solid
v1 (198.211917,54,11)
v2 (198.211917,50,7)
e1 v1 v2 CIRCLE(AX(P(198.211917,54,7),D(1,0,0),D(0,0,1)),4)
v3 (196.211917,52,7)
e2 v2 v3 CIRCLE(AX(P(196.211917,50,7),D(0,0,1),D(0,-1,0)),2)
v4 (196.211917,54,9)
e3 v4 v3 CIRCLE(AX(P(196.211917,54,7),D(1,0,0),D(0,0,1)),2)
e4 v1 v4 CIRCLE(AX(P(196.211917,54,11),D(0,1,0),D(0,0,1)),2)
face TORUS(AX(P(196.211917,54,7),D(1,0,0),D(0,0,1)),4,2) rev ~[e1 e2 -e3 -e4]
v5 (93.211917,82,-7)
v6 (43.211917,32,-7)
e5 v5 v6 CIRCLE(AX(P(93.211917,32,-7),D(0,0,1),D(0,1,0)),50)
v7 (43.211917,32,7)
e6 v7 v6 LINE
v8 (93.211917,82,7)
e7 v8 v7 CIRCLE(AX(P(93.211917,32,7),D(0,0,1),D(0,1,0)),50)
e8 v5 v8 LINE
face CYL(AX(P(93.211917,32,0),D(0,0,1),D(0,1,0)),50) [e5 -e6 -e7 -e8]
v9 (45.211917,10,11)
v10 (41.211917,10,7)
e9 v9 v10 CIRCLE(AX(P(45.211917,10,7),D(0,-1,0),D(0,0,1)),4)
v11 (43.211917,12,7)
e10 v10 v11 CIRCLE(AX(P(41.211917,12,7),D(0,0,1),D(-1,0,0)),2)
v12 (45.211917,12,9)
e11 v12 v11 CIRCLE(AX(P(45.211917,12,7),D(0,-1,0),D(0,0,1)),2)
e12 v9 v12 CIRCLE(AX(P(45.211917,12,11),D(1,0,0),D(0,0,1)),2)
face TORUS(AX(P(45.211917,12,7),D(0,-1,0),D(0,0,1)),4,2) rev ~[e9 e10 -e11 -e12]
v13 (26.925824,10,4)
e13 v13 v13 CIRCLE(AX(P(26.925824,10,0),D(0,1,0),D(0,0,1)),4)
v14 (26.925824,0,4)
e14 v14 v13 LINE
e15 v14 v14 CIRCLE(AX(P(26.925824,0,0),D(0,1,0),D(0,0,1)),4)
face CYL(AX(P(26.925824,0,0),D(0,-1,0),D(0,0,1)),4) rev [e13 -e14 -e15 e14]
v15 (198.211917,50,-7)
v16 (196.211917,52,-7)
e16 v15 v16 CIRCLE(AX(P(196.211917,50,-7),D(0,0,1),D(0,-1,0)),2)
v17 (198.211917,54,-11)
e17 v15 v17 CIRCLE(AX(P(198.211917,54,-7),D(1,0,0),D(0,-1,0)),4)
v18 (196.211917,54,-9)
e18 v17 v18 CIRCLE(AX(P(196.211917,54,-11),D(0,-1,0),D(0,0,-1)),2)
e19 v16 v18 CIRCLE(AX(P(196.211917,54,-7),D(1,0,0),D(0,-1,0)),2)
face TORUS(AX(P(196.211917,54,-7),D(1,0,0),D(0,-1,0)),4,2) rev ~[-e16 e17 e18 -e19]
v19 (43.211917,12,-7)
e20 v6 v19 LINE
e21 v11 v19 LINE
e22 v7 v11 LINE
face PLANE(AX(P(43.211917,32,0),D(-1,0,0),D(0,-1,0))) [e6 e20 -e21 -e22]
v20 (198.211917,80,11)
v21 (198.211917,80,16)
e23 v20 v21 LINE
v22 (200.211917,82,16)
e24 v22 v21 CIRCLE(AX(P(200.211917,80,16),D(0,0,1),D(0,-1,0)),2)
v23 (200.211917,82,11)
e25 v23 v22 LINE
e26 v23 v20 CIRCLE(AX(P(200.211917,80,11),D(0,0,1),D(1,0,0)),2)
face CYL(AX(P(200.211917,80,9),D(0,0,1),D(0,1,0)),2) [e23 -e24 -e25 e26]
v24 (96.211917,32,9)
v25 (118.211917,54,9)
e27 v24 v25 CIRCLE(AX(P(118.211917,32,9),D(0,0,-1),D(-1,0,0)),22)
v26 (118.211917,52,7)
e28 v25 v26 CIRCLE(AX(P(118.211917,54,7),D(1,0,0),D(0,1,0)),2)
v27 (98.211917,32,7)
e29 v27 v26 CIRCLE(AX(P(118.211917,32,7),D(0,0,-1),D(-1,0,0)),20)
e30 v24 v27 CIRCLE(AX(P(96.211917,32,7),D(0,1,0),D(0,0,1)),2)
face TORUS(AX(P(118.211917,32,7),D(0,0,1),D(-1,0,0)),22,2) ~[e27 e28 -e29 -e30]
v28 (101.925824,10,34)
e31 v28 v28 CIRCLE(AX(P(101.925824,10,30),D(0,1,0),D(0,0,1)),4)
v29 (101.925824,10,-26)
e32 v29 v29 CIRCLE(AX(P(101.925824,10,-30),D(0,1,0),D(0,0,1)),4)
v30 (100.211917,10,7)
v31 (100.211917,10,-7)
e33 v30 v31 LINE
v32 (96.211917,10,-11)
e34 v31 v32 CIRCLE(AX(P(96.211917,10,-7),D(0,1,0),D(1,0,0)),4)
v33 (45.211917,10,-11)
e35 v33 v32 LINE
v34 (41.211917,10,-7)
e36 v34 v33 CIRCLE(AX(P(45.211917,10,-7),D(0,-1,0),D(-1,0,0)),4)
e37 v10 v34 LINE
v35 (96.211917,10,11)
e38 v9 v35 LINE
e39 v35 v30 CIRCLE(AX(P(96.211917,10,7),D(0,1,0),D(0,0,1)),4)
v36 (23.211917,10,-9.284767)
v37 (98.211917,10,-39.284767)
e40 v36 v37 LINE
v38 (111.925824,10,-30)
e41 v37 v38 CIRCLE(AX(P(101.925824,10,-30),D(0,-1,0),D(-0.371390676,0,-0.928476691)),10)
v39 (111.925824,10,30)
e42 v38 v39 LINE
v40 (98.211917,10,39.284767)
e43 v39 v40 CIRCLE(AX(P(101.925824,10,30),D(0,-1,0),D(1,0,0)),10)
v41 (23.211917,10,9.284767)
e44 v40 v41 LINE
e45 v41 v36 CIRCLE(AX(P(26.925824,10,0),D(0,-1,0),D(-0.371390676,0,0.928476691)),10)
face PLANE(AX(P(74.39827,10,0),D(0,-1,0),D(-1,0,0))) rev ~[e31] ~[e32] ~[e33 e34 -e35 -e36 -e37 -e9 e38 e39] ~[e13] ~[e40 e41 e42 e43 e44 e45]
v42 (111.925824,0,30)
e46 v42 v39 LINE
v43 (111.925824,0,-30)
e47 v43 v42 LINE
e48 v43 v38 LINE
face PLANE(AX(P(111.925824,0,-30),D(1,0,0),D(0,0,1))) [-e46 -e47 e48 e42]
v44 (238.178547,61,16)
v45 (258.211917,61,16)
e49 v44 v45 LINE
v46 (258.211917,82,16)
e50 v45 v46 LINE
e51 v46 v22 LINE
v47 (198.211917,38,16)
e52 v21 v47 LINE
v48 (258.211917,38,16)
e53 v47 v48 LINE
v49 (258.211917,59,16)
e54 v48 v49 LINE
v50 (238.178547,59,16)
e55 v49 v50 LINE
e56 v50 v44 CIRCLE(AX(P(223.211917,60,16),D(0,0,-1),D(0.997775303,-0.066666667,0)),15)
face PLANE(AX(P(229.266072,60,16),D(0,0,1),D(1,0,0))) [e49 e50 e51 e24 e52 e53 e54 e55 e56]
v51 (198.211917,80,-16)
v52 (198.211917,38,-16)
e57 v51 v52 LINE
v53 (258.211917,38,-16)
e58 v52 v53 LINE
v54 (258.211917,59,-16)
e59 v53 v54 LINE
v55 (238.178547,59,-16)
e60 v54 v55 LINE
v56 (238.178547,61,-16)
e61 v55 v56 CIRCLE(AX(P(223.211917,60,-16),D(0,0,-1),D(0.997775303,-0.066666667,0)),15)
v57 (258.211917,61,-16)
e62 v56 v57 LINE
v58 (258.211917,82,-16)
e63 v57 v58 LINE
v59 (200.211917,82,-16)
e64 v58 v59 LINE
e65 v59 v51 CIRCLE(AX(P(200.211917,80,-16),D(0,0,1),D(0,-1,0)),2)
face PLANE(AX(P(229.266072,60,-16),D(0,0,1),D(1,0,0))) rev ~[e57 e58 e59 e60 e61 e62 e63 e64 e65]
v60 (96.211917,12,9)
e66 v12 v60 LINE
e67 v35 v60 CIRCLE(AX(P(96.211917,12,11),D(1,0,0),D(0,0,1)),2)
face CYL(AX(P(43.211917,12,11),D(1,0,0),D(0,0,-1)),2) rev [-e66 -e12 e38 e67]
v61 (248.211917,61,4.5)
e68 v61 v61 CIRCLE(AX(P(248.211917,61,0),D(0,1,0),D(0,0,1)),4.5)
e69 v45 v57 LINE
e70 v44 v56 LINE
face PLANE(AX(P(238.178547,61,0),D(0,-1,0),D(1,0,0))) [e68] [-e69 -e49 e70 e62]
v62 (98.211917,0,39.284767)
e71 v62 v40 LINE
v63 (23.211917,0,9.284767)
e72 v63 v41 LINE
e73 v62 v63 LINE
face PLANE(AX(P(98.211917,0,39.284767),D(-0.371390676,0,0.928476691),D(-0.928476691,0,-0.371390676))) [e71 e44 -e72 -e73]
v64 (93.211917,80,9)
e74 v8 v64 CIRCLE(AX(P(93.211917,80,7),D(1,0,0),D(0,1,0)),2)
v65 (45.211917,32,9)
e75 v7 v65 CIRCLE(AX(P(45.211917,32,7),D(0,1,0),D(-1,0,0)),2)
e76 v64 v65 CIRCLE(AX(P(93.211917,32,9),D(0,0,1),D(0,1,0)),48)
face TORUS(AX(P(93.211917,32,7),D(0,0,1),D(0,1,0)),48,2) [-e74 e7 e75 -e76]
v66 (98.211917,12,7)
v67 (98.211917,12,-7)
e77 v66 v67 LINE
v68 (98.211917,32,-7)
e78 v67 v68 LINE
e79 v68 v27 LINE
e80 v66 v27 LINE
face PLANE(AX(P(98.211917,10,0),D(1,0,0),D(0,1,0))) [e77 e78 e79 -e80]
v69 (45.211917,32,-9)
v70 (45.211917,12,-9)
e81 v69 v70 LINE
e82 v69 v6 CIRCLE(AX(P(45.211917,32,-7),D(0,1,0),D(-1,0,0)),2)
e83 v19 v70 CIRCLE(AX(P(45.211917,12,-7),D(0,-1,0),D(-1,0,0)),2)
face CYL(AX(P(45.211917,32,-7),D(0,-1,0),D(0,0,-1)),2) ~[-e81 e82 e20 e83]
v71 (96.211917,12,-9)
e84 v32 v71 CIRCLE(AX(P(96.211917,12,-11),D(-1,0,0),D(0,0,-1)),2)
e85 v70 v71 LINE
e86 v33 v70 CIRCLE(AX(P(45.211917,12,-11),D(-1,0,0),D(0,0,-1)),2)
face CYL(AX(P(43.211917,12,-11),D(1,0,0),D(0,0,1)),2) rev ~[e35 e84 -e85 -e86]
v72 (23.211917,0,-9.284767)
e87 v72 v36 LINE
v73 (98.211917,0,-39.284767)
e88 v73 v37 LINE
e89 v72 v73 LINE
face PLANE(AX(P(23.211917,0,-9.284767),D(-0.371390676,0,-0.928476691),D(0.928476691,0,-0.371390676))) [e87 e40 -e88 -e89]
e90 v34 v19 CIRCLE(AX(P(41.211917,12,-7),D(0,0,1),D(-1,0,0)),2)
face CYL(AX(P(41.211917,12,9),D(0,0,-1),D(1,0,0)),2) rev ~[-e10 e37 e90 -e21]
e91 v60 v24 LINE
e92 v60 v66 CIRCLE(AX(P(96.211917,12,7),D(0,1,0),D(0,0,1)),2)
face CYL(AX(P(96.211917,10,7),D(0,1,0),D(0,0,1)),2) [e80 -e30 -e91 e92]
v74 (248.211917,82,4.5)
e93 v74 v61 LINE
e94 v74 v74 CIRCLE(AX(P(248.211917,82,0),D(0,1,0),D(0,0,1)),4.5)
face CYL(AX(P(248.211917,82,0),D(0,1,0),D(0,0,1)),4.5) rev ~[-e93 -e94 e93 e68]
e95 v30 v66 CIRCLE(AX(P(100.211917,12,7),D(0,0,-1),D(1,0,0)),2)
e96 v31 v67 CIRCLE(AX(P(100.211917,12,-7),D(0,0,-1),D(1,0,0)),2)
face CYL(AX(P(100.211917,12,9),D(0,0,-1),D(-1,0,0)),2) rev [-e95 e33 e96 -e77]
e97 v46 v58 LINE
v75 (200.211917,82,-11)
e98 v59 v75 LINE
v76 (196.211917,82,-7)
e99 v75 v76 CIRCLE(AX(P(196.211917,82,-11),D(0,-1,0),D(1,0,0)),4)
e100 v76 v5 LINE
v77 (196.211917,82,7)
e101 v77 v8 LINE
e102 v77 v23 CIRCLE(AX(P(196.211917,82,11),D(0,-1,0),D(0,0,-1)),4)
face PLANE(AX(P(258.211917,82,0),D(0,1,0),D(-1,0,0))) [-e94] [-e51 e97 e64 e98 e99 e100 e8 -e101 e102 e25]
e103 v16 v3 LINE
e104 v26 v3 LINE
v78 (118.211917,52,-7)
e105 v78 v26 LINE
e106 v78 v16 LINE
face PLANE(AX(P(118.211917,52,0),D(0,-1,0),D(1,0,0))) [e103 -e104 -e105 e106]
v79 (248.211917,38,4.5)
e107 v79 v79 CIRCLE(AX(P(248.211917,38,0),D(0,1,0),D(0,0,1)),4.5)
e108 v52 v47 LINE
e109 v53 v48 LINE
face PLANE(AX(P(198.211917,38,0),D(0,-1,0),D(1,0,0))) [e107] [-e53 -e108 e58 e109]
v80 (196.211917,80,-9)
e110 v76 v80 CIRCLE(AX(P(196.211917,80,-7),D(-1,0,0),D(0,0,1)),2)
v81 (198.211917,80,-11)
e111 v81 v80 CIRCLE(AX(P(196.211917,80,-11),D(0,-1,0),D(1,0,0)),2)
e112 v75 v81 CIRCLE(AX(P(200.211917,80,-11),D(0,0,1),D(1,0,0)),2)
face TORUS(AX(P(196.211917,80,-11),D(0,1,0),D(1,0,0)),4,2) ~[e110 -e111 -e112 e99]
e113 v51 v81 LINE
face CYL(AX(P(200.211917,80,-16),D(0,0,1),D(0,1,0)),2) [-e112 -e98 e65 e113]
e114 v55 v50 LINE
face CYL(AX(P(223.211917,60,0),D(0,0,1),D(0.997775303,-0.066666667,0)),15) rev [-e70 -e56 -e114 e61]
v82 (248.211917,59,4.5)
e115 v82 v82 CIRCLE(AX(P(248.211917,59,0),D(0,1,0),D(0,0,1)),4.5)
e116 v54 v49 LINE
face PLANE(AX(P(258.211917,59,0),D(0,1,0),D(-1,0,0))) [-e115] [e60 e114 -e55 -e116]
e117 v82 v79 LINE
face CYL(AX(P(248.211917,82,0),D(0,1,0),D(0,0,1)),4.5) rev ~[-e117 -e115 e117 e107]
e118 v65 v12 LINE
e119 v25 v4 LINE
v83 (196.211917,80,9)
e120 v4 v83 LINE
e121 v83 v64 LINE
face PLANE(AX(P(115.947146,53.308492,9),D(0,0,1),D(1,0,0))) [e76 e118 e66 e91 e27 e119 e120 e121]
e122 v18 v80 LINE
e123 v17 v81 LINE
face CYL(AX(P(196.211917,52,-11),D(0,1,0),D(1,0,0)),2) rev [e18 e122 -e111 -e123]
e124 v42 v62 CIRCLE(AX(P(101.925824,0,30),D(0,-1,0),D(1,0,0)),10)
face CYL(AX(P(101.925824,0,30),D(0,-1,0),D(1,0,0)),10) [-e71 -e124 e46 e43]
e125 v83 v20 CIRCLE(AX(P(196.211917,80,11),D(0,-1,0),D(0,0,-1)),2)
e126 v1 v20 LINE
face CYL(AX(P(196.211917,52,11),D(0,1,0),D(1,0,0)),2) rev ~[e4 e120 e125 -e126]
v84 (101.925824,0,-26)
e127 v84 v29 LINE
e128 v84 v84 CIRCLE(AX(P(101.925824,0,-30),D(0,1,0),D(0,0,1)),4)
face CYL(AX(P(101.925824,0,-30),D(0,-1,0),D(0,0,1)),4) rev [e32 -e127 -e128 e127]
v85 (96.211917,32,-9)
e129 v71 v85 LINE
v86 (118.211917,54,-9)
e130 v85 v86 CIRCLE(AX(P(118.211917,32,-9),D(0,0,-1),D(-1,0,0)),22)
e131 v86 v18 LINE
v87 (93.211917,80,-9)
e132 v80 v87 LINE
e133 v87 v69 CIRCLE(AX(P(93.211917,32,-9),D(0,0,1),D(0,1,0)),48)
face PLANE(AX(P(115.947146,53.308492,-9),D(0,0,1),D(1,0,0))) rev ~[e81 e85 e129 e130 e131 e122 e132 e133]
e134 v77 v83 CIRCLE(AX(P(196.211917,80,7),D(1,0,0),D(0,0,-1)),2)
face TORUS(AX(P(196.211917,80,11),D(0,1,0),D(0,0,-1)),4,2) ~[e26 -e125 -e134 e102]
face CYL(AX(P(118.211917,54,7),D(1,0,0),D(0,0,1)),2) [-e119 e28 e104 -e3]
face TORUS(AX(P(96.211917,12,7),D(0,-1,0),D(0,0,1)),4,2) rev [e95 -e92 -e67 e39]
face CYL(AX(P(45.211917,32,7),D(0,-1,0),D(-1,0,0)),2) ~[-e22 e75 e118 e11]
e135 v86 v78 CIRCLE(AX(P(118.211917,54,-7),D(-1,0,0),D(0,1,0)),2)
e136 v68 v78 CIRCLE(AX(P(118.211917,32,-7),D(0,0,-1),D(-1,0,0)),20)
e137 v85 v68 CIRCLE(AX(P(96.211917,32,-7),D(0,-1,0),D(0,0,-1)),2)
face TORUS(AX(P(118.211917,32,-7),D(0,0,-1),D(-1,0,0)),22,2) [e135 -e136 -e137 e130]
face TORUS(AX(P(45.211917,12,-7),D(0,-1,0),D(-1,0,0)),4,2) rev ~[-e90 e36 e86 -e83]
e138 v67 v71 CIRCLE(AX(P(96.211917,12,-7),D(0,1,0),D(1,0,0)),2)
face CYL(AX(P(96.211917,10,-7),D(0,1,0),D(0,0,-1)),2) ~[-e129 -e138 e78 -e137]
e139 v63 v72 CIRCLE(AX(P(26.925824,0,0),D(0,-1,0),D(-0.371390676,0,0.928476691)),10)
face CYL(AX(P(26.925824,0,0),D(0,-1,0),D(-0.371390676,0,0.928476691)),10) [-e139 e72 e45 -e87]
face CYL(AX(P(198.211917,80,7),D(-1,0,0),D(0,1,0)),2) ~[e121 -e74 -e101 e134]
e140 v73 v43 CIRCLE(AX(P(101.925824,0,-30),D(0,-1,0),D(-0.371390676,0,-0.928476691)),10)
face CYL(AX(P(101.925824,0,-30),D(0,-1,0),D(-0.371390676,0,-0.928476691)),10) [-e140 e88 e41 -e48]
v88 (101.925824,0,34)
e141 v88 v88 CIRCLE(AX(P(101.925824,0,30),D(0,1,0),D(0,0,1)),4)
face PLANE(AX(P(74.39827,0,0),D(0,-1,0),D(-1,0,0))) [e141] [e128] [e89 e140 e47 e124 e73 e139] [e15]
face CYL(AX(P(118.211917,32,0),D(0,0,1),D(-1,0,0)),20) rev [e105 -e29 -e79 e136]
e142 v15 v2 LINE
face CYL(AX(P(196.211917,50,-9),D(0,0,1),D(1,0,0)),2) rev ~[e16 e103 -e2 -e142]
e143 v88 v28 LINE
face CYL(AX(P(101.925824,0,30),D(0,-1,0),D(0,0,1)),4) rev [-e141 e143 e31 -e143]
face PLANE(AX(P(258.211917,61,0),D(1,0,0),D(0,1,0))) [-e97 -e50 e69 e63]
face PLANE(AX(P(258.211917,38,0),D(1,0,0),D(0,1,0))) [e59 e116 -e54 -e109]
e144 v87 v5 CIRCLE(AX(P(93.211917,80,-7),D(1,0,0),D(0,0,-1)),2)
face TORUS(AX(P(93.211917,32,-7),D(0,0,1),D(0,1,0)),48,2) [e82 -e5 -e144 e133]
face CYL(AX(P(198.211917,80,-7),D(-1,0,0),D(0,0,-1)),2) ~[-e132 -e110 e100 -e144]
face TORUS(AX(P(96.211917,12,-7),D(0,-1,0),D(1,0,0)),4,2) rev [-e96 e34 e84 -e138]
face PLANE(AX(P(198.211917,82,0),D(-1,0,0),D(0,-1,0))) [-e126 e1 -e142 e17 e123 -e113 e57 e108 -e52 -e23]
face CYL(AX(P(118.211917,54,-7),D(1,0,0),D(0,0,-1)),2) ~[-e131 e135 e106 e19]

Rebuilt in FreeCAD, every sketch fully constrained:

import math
import FreeCAD as App
import Part
import Sketcher

V = App.Vector
Q = App.Units.Quantity


def edges_at(feature, points):
    """Names of the edges that pass closest to the given points."""
    edges = feature.Shape.Edges
    near = lambda p: min(range(len(edges)), key=lambda i: edges[i].distToShape(Part.Vertex(*p))[0])
    return sorted({f"Edge{near(p) + 1}" for p in points})

doc = App.newDocument("Part")
params = doc.addObject("Spreadsheet::Sheet", "Params")
for row, (alias, value) in enumerate([
    ("sketch1_diameter", "8 mm"),
    ("sketch1_radius", "10 mm"),
    ("sketch1_height", "60 mm"),
    ("pad1_length", "10 mm"),
    ("sketch2_radius", "20 mm"),
    ("sketch2_radius2", "50 mm"),
    ("sketch2_width", "80 mm"),
    ("sketch2_width2", "105 mm"),
    ("sketch2_height", "22 mm"),
    ("pad2_length", "18 mm"),
    ("sketch3_radius", "15 mm"),
    ("sketch3_width", "60 mm"),
    ("sketch3_height", "44 mm"),
    ("sketch3_height2", "21 mm"),
    ("pad3_length", "32 mm"),
    ("sketch4_diameter", "9 mm"),
    ("fillet_radius", "2 mm"),
], start=1):
    params.set(f"A{row}", alias)
    params.set(f"B{row}", "=" + value)
    params.setAlias(f"B{row}", alias)

body = doc.addObject("PartDesign::Body", "Body")

# Sketch on XZ plane
sketch1 = body.newObject("Sketcher::SketchObject", "Sketch")
sketch1.AttachmentSupport = (doc.getObject("XZ_Plane"), [""])
sketch1.MapMode = "FlatFace"
sketch1.addGeometry([
    Part.LineSegment(V(98.211917, -39.284767, 0), V(23.211917, -9.284767, 0)),  # 0
    Part.ArcOfCircle(Part.Circle(V(26.925824, 0, 0), V(0, 0, 1), 10), math.radians(111.801409), math.radians(248.198591)),  # 1
    Part.LineSegment(V(23.211917, 9.284767, 0), V(98.211917, 39.284767, 0)),  # 2
    Part.ArcOfCircle(Part.Circle(V(101.925824, 30, 0), V(0, 0, 1), 10), math.radians(0), math.radians(111.801409)),  # 3
    Part.LineSegment(V(111.925824, 30, 0), V(111.925824, -30, 0)),  # 4
    Part.ArcOfCircle(Part.Circle(V(101.925824, -30, 0), V(0, 0, 1), 10), math.radians(-111.801409), math.radians(0)),  # 5
    Part.Circle(V(101.925824, 30, 0), V(0, 0, 1), 4),  # 6
    Part.Circle(V(101.925824, -30, 0), V(0, 0, 1), 4),  # 7
    Part.Circle(V(26.925824, 0, 0), V(0, 0, 1), 4),  # 8
], False)
sketch1.addConstraint([
    Sketcher.Constraint("Tangent", 0, 2, 1, 2),
    Sketcher.Constraint("Tangent", 1, 1, 2, 1),
    Sketcher.Constraint("Tangent", 2, 2, 3, 2),
    Sketcher.Constraint("Tangent", 3, 1, 4, 1),
    Sketcher.Constraint("Tangent", 4, 2, 5, 2),
    Sketcher.Constraint("Tangent", 5, 1, 0, 1),
    Sketcher.Constraint("Vertical", 4),
    Sketcher.Constraint("Coincident", 6, 3, 3, 3),
    Sketcher.Constraint("Coincident", 7, 3, 5, 3),
    Sketcher.Constraint("Coincident", 8, 3, 1, 3),
    Sketcher.Constraint("Equal", 1, 3),
    Sketcher.Constraint("Equal", 3, 5),
    Sketcher.Constraint("Equal", 6, 7),
    Sketcher.Constraint("Equal", 7, 8),
    Sketcher.Constraint("Symmetric", 0, 2, 1, 1, -1),
    Sketcher.Constraint("Diameter", 6, Q("8 mm")),
    Sketcher.Constraint("Radius", 1, Q("10 mm")),
    Sketcher.Constraint("DistanceY", 4, 2, 4, 1, Q("60 mm")),
    Sketcher.Constraint("DistanceX", 1, 3, 3, 3, Q("75 mm")),
    Sketcher.Constraint("DistanceX", -1, 1, 1, 3, Q("26.925824 mm")),
])
sketch1.setExpression("Constraints[15]", "Params.sketch1_diameter")
sketch1.setExpression("Constraints[16]", "Params.sketch1_radius")
sketch1.setExpression("Constraints[17]", "Params.sketch1_height")
pad1 = body.newObject("PartDesign::Pad", "Pad")
pad1.Profile = sketch1
pad1.setExpression("Length", "Params.pad1_length")
pad1.Reversed = True

# Sketch on XY plane
sketch2 = body.newObject("Sketcher::SketchObject", "Sketch001")
sketch2.AttachmentSupport = (doc.getObject("XY_Plane"), [""])
sketch2.MapMode = "FlatFace"
sketch2.addGeometry([
    Part.LineSegment(V(98.211917, 10, 0), V(98.211917, 32, 0)),  # 0
    Part.ArcOfCircle(Part.Circle(V(118.211917, 32, 0), V(0, 0, 1), 20), math.radians(90), math.radians(180)),  # 1
    Part.LineSegment(V(118.211917, 52, 0), V(198.211917, 52, 0)),  # 2
    Part.LineSegment(V(198.211917, 52, 0), V(198.211917, 82, 0)),  # 3
    Part.LineSegment(V(198.211917, 82, 0), V(93.211917, 82, 0)),  # 4
    Part.ArcOfCircle(Part.Circle(V(93.211917, 32, 0), V(0, 0, 1), 50), math.radians(90), math.radians(180)),  # 5
    Part.LineSegment(V(43.211917, 32, 0), V(43.211917, 10, 0)),  # 6
    Part.LineSegment(V(43.211917, 10, 0), V(98.211917, 10, 0)),  # 7
], False)
sketch2.addConstraint([
    Sketcher.Constraint("Tangent", 0, 2, 1, 2),
    Sketcher.Constraint("Tangent", 1, 1, 2, 1),
    Sketcher.Constraint("Coincident", 2, 2, 3, 1),
    Sketcher.Constraint("Coincident", 3, 2, 4, 1),
    Sketcher.Constraint("Tangent", 4, 2, 5, 1),
    Sketcher.Constraint("Tangent", 5, 2, 6, 1),
    Sketcher.Constraint("Coincident", 6, 2, 7, 1),
    Sketcher.Constraint("Coincident", 7, 2, 0, 1),
    Sketcher.Constraint("Vertical", 0),
    Sketcher.Constraint("Horizontal", 2),
    Sketcher.Constraint("Vertical", 3),
    Sketcher.Constraint("Horizontal", 4),
    Sketcher.Constraint("Vertical", 6),
    Sketcher.Constraint("Horizontal", 7),
    Sketcher.Constraint("Horizontal", 1, 3, 5, 3),
    Sketcher.Constraint("Radius", 1, Q("20 mm")),
    Sketcher.Constraint("Radius", 5, Q("50 mm")),
    Sketcher.Constraint("DistanceX", 2, 1, 2, 2, Q("80 mm")),
    Sketcher.Constraint("DistanceX", 4, 2, 4, 1, Q("105 mm")),
    Sketcher.Constraint("DistanceY", 0, 1, 0, 2, Q("22 mm")),
    Sketcher.Constraint("DistanceY", -1, 1, 1, 3, Q("32 mm")),
    Sketcher.Constraint("DistanceX", -1, 1, 1, 3, Q("118.211917 mm")),
])
sketch2.setExpression("Constraints[15]", "Params.sketch2_radius")
sketch2.setExpression("Constraints[16]", "Params.sketch2_radius2")
sketch2.setExpression("Constraints[17]", "Params.sketch2_width")
sketch2.setExpression("Constraints[18]", "Params.sketch2_width2")
sketch2.setExpression("Constraints[19]", "Params.sketch2_height")
pad2 = body.newObject("PartDesign::Pad", "Pad001")
pad2.Profile = sketch2
pad2.setExpression("Length", "Params.pad2_length")
pad2.Midplane = True

# Sketch on XY plane
sketch3 = body.newObject("Sketcher::SketchObject", "Sketch002")
sketch3.AttachmentSupport = (doc.getObject("XY_Plane"), [""])
sketch3.MapMode = "FlatFace"
sketch3.addGeometry([
    Part.LineSegment(V(258.211917, 82, 0), V(198.211917, 82, 0)),  # 0
    Part.LineSegment(V(198.211917, 82, 0), V(198.211917, 38, 0)),  # 1
    Part.LineSegment(V(198.211917, 38, 0), V(258.211917, 38, 0)),  # 2
    Part.LineSegment(V(258.211917, 38, 0), V(258.211917, 59, 0)),  # 3
    Part.LineSegment(V(258.211917, 59, 0), V(238.178547, 59, 0)),  # 4
    Part.ArcOfCircle(Part.Circle(V(223.211917, 60, 0), V(0, 0, 1), 15), math.radians(3.822554), math.radians(356.177446)),  # 5
    Part.LineSegment(V(238.178547, 61, 0), V(258.211917, 61, 0)),  # 6
    Part.LineSegment(V(258.211917, 61, 0), V(258.211917, 82, 0)),  # 7
], False)
sketch3.addConstraint([
    Sketcher.Constraint("Coincident", 0, 2, 1, 1),
    Sketcher.Constraint("Coincident", 1, 2, 2, 1),
    Sketcher.Constraint("Coincident", 2, 2, 3, 1),
    Sketcher.Constraint("Coincident", 3, 2, 4, 1),
    Sketcher.Constraint("Coincident", 4, 2, 5, 2),
    Sketcher.Constraint("Coincident", 5, 1, 6, 1),
    Sketcher.Constraint("Coincident", 6, 2, 7, 1),
    Sketcher.Constraint("Coincident", 7, 2, 0, 1),
    Sketcher.Constraint("Horizontal", 0),
    Sketcher.Constraint("Vertical", 1),
    Sketcher.Constraint("Horizontal", 2),
    Sketcher.Constraint("Vertical", 3),
    Sketcher.Constraint("Horizontal", 4),
    Sketcher.Constraint("Horizontal", 6),
    Sketcher.Constraint("Vertical", 7),
    Sketcher.Constraint("Vertical", 4, 2, 5, 1),
    Sketcher.Constraint("Vertical", 3, 2, 6, 2),
    Sketcher.Constraint("Equal", 3, 7),
    Sketcher.Constraint("Radius", 5, Q("15 mm")),
    Sketcher.Constraint("DistanceX", 0, 2, 0, 1, Q("60 mm")),
    Sketcher.Constraint("DistanceY", 1, 2, 1, 1, Q("44 mm")),
    Sketcher.Constraint("DistanceY", 3, 1, 3, 2, Q("21 mm")),
    Sketcher.Constraint("DistanceY", -1, 1, 5, 3, Q("60 mm")),
    Sketcher.Constraint("DistanceX", 0, 2, 5, 3, Q("25 mm")),
    Sketcher.Constraint("DistanceX", -1, 1, 5, 3, Q("223.211917 mm")),
])
sketch3.setExpression("Constraints[18]", "Params.sketch3_radius")
sketch3.setExpression("Constraints[19]", "Params.sketch3_width")
sketch3.setExpression("Constraints[20]", "Params.sketch3_height")
sketch3.setExpression("Constraints[21]", "Params.sketch3_height2")
pad3 = body.newObject("PartDesign::Pad", "Pad002")
pad3.Profile = sketch3
pad3.setExpression("Length", "Params.pad3_length")
pad3.Midplane = True

# Sketch on XZ plane
sketch4 = body.newObject("Sketcher::SketchObject", "Sketch003")
sketch4.AttachmentSupport = (doc.getObject("XZ_Plane"), [""])
sketch4.MapMode = "FlatFace"
sketch4.AttachmentOffset = App.Placement(V(0, 0, -82), App.Rotation())
sketch4.addGeometry(Part.Circle(V(248.211917, 0, 0), V(0, 0, 1), 4.5), False)
sketch4.addConstraint([
    Sketcher.Constraint("PointOnObject", 0, 3, -1),
    Sketcher.Constraint("Diameter", 0, Q("9 mm")),
    Sketcher.Constraint("DistanceX", -1, 1, 0, 3, Q("248.211917 mm")),
])
sketch4.setExpression("Constraints[1]", "Params.sketch4_diameter")
pocket1 = body.newObject("PartDesign::Pocket", "Pocket")
pocket1.Profile = sketch4
pocket1.Type = "ThroughAll"
pocket1.Reversed = True
doc.recompute()

fillet = body.newObject("PartDesign::Fillet", "Fillet")
fillet.Base = (pocket1, edges_at(pocket1, [
    (98.212, 21, -9),
    (98.212, 10, 0),
    (104.07, 46.142, -9),
    (158.212, 52, 9),
    (198.212, 67, 9),
    (198.212, 52, 0),
    (145.712, 82, 9),
    (57.857, 67.355, 9),
    (43.212, 21, 9),
    (70.712, 10, 9),
    (43.212, 10, 0),
    (98.212, 21, 9),
    (104.07, 46.142, 9),
    (70.712, 10, -9),
    (43.212, 21, -9),
    (57.857, 67.355, -9),
    (145.712, 82, -9),
    (198.212, 67, -9),
    (158.212, 52, -9),
    (198.212, 82, -12.5),
    (198.212, 82, 12.5),
]))
fillet.setExpression("Radius", "Params.fillet_radius")

doc.recompute()
